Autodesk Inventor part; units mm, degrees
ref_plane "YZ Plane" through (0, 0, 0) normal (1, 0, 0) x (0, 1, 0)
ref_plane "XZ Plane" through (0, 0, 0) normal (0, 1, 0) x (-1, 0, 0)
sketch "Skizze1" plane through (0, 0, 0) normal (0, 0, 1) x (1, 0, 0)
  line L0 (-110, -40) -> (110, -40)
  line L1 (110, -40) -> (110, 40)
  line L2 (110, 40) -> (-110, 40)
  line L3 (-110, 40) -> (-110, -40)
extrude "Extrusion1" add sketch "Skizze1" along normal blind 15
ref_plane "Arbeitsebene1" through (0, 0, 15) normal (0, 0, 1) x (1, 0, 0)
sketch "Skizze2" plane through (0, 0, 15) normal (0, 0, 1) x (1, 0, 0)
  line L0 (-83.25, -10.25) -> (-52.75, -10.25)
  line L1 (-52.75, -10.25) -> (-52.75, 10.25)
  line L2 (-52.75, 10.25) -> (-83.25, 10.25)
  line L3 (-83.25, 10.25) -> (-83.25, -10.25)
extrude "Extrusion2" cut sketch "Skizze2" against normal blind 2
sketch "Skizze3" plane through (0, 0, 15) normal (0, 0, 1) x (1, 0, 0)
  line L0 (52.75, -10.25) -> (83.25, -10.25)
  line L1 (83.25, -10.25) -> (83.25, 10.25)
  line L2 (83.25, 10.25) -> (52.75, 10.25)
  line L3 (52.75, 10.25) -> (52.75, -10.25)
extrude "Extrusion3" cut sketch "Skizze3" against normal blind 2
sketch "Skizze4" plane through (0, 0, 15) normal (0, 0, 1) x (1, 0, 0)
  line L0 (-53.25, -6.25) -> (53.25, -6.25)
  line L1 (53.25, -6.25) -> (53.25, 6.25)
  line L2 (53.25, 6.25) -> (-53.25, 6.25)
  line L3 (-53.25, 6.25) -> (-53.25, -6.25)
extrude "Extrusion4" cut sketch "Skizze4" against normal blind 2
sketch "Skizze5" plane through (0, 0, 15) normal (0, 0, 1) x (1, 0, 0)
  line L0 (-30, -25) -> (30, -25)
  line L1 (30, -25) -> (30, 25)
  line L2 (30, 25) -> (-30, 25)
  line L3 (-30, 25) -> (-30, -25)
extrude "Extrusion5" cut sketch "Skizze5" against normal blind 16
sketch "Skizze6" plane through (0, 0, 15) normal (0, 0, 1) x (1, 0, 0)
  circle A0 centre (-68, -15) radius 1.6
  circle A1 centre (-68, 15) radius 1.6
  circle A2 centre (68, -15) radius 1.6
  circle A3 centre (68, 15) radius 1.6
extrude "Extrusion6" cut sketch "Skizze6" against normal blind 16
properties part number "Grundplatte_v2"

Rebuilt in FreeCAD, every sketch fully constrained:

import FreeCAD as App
import Part
import Sketcher

V = App.Vector
Q = App.Units.Quantity

doc = App.newDocument("Part")
body = doc.addObject("PartDesign::Body", "Body")

# Sketch on XY plane
sketch1 = body.newObject("Sketcher::SketchObject", "Sketch")
sketch1.AttachmentSupport = (doc.getObject("XY_Plane"), [""])
sketch1.MapMode = "FlatFace"
sketch1.addGeometry([
    Part.LineSegment(V(-110, 40, 0), V(-110, -40, 0)),
    Part.LineSegment(V(-110, -40, 0), V(110, -40, 0)),
    Part.LineSegment(V(110, -40, 0), V(110, 40, 0)),
    Part.LineSegment(V(110, 40, 0), V(-110, 40, 0)),
], False)
sketch1.addConstraint([
    Sketcher.Constraint("Coincident", 0, 2, 1, 1),
    Sketcher.Constraint("Coincident", 1, 2, 2, 1),
    Sketcher.Constraint("Coincident", 2, 2, 3, 1),
    Sketcher.Constraint("Coincident", 3, 2, 0, 1),
    Sketcher.Constraint("Vertical", 0),
    Sketcher.Constraint("Horizontal", 1),
    Sketcher.Constraint("Vertical", 2),
    Sketcher.Constraint("Horizontal", 3),
    Sketcher.Constraint("Symmetric", 0, 2, 2, 2, -1, 1),
    Sketcher.Constraint("DistanceX", 1, 1, 1, 2, Q("220 mm")),
    Sketcher.Constraint("DistanceY", 0, 2, 0, 1, Q("80 mm")),
])
pad1 = body.newObject("PartDesign::Pad", "Pad")
pad1.Profile = sketch1
pad1.Length = 15

# Sketch on XY plane
sketch2 = body.newObject("Sketcher::SketchObject", "Sketch001")
sketch2.AttachmentSupport = (doc.getObject("XY_Plane"), [""])
sketch2.MapMode = "FlatFace"
sketch2.AttachmentOffset = App.Placement(V(0, 0, 15), App.Rotation())
sketch2.addGeometry([
    Part.LineSegment(V(-83, 10, 0), V(-83, -10, 0)),
    Part.LineSegment(V(-83, -10, 0), V(-53, -10, 0)),
    Part.LineSegment(V(-53, -10, 0), V(-53, 10, 0)),
    Part.LineSegment(V(-53, 10, 0), V(-83, 10, 0)),
], False)
sketch2.addConstraint([
    Sketcher.Constraint("Coincident", 0, 2, 1, 1),
    Sketcher.Constraint("Coincident", 1, 2, 2, 1),
    Sketcher.Constraint("Coincident", 2, 2, 3, 1),
    Sketcher.Constraint("Coincident", 3, 2, 0, 1),
    Sketcher.Constraint("Vertical", 0),
    Sketcher.Constraint("Horizontal", 1),
    Sketcher.Constraint("Vertical", 2),
    Sketcher.Constraint("Horizontal", 3),
    Sketcher.Constraint("DistanceX", 1, 1, 1, 2, Q("30.5 mm")),
    Sketcher.Constraint("DistanceY", 0, 2, 0, 1, Q("20.5 mm")),
    Sketcher.Constraint("DistanceX", 0, 2, -1, 1, Q("83.25 mm")),
    Sketcher.Constraint("DistanceY", 0, 2, -1, 1, Q("10.25 mm")),
])
pocket1 = body.newObject("PartDesign::Pocket", "Pocket")
pocket1.Profile = sketch2
pocket1.Length = 2

# Sketch on XY plane
sketch3 = body.newObject("Sketcher::SketchObject", "Sketch002")
sketch3.AttachmentSupport = (doc.getObject("XY_Plane"), [""])
sketch3.MapMode = "FlatFace"
sketch3.AttachmentOffset = App.Placement(V(0, 0, 15), App.Rotation())
sketch3.addGeometry([
    Part.LineSegment(V(53, 10, 0), V(53, -10, 0)),
    Part.LineSegment(V(53, -10, 0), V(83, -10, 0)),
    Part.LineSegment(V(83, -10, 0), V(83, 10, 0)),
    Part.LineSegment(V(83, 10, 0), V(53, 10, 0)),
], False)
sketch3.addConstraint([
    Sketcher.Constraint("Coincident", 0, 2, 1, 1),
    Sketcher.Constraint("Coincident", 1, 2, 2, 1),
    Sketcher.Constraint("Coincident", 2, 2, 3, 1),
    Sketcher.Constraint("Coincident", 3, 2, 0, 1),
    Sketcher.Constraint("Vertical", 0),
    Sketcher.Constraint("Horizontal", 1),
    Sketcher.Constraint("Vertical", 2),
    Sketcher.Constraint("Horizontal", 3),
    Sketcher.Constraint("DistanceX", 1, 1, 1, 2, Q("30.5 mm")),
    Sketcher.Constraint("DistanceY", 0, 2, 0, 1, Q("20.5 mm")),
    Sketcher.Constraint("DistanceX", -1, 1, 0, 2, Q("52.75 mm")),
    Sketcher.Constraint("DistanceY", 0, 2, -1, 1, Q("10.25 mm")),
])
pocket2 = body.newObject("PartDesign::Pocket", "Pocket001")
pocket2.Profile = sketch3
pocket2.Length = 2

# Sketch on XY plane
sketch4 = body.newObject("Sketcher::SketchObject", "Sketch003")
sketch4.AttachmentSupport = (doc.getObject("XY_Plane"), [""])
sketch4.MapMode = "FlatFace"
sketch4.AttachmentOffset = App.Placement(V(0, 0, 15), App.Rotation())
sketch4.addGeometry([
    Part.LineSegment(V(-53, 6, 0), V(-53, -6, 0)),
    Part.LineSegment(V(-53, -6, 0), V(53, -6, 0)),
    Part.LineSegment(V(53, -6, 0), V(53, 6, 0)),
    Part.LineSegment(V(53, 6, 0), V(-53, 6, 0)),
], False)
sketch4.addConstraint([
    Sketcher.Constraint("Coincident", 0, 2, 1, 1),
    Sketcher.Constraint("Coincident", 1, 2, 2, 1),
    Sketcher.Constraint("Coincident", 2, 2, 3, 1),
    Sketcher.Constraint("Coincident", 3, 2, 0, 1),
    Sketcher.Constraint("Vertical", 0),
    Sketcher.Constraint("Horizontal", 1),
    Sketcher.Constraint("Vertical", 2),
    Sketcher.Constraint("Horizontal", 3),
    Sketcher.Constraint("Symmetric", 0, 2, 2, 2, -1, 1),
    Sketcher.Constraint("DistanceX", 1, 1, 1, 2, Q("106.5 mm")),
    Sketcher.Constraint("DistanceY", 0, 2, 0, 1, Q("12.5 mm")),
])
pocket3 = body.newObject("PartDesign::Pocket", "Pocket002")
pocket3.Profile = sketch4
pocket3.Length = 2

# Sketch on XY plane
sketch5 = body.newObject("Sketcher::SketchObject", "Sketch004")
sketch5.AttachmentSupport = (doc.getObject("XY_Plane"), [""])
sketch5.MapMode = "FlatFace"
sketch5.AttachmentOffset = App.Placement(V(0, 0, 15), App.Rotation())
sketch5.addGeometry([
    Part.LineSegment(V(-30, 25, 0), V(-30, -25, 0)),
    Part.LineSegment(V(-30, -25, 0), V(30, -25, 0)),
    Part.LineSegment(V(30, -25, 0), V(30, 25, 0)),
    Part.LineSegment(V(30, 25, 0), V(-30, 25, 0)),
], False)
sketch5.addConstraint([
    Sketcher.Constraint("Coincident", 0, 2, 1, 1),
    Sketcher.Constraint("Coincident", 1, 2, 2, 1),
    Sketcher.Constraint("Coincident", 2, 2, 3, 1),
    Sketcher.Constraint("Coincident", 3, 2, 0, 1),
    Sketcher.Constraint("Vertical", 0),
    Sketcher.Constraint("Horizontal", 1),
    Sketcher.Constraint("Vertical", 2),
    Sketcher.Constraint("Horizontal", 3),
    Sketcher.Constraint("Symmetric", 0, 2, 2, 2, -1, 1),
    Sketcher.Constraint("DistanceX", 1, 1, 1, 2, Q("60 mm")),
    Sketcher.Constraint("DistanceY", 0, 2, 0, 1, Q("50 mm")),
])
pocket4 = body.newObject("PartDesign::Pocket", "Pocket003")
pocket4.Profile = sketch5
pocket4.Length = 16

# Sketch on XY plane
sketch6 = body.newObject("Sketcher::SketchObject", "Sketch005")
sketch6.AttachmentSupport = (doc.getObject("XY_Plane"), [""])
sketch6.MapMode = "FlatFace"
sketch6.AttachmentOffset = App.Placement(V(0, 0, 15), App.Rotation())
sketch6.addGeometry([
    Part.Circle(V(-68, -15, 0), V(0, 0, 1), 1.6),
    Part.Circle(V(-68, 15, 0), V(0, 0, 1), 1.6),
    Part.Circle(V(68, -15, 0), V(0, 0, 1), 1.6),
    Part.Circle(V(68, 15, 0), V(0, 0, 1), 1.6),
], False)
sketch6.addConstraint([
    Sketcher.Constraint("Equal", 0, 1),
    Sketcher.Constraint("Equal", 1, 2),
    Sketcher.Constraint("Equal", 2, 3),
    Sketcher.Constraint("Symmetric", 1, 3, 2, 3, -1, 1),
    Sketcher.Constraint("Symmetric", 0, 3, 3, 3, -1, 1),
    Sketcher.Constraint("Symmetric", 0, 3, 2, 3, -2),
    Sketcher.Constraint("Diameter", 0, Q("3.2 mm")),
    Sketcher.Constraint("DistanceX", 0, 3, -1, 1, Q("68 mm")),
    Sketcher.Constraint("DistanceY", 0, 3, -1, 1, Q("15 mm")),
])
pocket5 = body.newObject("PartDesign::Pocket", "Pocket004")
pocket5.Profile = sketch6
pocket5.Length = 16

doc.recompute()
